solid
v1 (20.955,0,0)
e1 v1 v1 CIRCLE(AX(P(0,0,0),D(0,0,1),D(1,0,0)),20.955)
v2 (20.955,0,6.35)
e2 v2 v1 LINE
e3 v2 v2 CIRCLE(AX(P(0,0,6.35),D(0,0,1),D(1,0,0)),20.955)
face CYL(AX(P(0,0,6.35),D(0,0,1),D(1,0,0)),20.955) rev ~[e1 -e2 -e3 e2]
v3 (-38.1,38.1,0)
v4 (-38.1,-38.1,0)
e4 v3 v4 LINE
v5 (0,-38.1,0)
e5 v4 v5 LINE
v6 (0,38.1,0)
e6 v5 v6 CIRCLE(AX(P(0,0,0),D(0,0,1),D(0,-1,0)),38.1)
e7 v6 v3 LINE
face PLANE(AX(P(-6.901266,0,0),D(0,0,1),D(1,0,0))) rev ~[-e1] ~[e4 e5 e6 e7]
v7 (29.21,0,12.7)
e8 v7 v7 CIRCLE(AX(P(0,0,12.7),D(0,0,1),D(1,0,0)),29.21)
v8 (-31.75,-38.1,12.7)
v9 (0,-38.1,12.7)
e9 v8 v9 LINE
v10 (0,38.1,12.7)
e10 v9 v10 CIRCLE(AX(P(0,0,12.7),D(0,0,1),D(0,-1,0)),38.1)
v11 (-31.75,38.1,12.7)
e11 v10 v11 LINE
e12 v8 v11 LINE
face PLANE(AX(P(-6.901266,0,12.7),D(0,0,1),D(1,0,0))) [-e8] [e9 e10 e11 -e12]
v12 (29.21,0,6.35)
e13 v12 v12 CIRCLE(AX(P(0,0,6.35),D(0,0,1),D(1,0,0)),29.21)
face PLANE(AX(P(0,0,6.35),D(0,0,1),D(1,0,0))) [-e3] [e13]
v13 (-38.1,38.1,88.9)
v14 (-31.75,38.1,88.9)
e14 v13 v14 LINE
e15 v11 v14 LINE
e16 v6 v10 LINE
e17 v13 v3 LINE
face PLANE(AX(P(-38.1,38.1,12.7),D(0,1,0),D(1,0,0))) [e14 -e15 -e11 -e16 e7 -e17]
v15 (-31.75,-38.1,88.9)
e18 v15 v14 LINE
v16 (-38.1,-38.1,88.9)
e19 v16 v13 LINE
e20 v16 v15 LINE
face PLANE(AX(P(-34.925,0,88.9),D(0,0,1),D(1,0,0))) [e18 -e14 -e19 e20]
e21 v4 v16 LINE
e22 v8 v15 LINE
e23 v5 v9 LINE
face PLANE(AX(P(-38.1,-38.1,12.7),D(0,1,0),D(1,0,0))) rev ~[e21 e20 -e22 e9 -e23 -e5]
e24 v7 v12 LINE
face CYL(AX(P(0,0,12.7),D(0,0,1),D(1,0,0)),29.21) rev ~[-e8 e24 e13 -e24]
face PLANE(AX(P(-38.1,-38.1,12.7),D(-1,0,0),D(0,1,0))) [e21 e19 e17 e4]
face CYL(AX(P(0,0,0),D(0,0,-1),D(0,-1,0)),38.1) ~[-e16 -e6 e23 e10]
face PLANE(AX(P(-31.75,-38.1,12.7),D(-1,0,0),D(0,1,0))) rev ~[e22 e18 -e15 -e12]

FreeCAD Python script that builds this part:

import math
import FreeCAD as App
import Part
import Sketcher
from FreeCAD import Vector
Q = App.Units.Quantity

doc = App.newDocument("Part")
body = doc.addObject("PartDesign::Body", "Body")

# Sketch on XY plane
sketch1 = body.newObject("Sketcher::SketchObject", "Sketch")
sketch1.AttachmentSupport = (doc.getObject("XY_Plane"), [""])
sketch1.MapMode = "FlatFace"
sketch1.addGeometry([
    Part.ArcOfCircle(Part.Circle(Vector(0, 0, 0), Vector(0, 0, 1), 38.1), math.radians(-90), math.radians(90)),
    Part.LineSegment(Vector(0, 38.1, 0), Vector(-38.1, 38.1, 0)),
    Part.LineSegment(Vector(-38.1, 38.1, 0), Vector(-38.1, -38.1, 0)),
    Part.LineSegment(Vector(-38.1, -38.1, 0), Vector(0, -38.1, 0)),
], False)
sketch1.addConstraint([
    Sketcher.Constraint("Tangent", 0, 2, 1, 1),
    Sketcher.Constraint("Coincident", 1, 2, 2, 1),
    Sketcher.Constraint("Coincident", 2, 2, 3, 1),
    Sketcher.Constraint("Tangent", 3, 2, 0, 1),
    Sketcher.Constraint("Horizontal", 1),
    Sketcher.Constraint("Vertical", 2),
    Sketcher.Constraint("Horizontal", 3),
    Sketcher.Constraint("Coincident", 0, 3, -1, 1),
    Sketcher.Constraint("Radius", 0, Q("1.5 in")),
    Sketcher.Constraint("DistanceX", 1, 2, 1, 1, Q("1.5 in")),
])
pad1 = body.newObject("PartDesign::Pad", "Pad")
pad1.Profile = sketch1
pad1.Length = Q("0.5 in")

# Sketch on XY plane
sketch2 = body.newObject("Sketcher::SketchObject", "Sketch001")
sketch2.AttachmentSupport = (doc.getObject("XY_Plane"), [""])
sketch2.MapMode = "FlatFace"
sketch2.AttachmentOffset = App.Placement(Vector(0, 0, 0.5 * 25.4), App.Rotation())
sketch2.addGeometry(Part.Circle(Vector(0, 0, 0), Vector(0, 0, 1), 29.21), False)
sketch2.addConstraint([
    Sketcher.Constraint("Coincident", 0, 3, -1, 1),
    Sketcher.Constraint("Diameter", 0, Q("2.3 in")),
])
pocket1 = body.newObject("PartDesign::Pocket", "Pocket")
pocket1.Profile = sketch2
pocket1.Length = Q("0.25 in")

# Sketch on XY plane
sketch3 = body.newObject("Sketcher::SketchObject", "Sketch002")
sketch3.AttachmentSupport = (doc.getObject("XY_Plane"), [""])
sketch3.MapMode = "FlatFace"
sketch3.AttachmentOffset = App.Placement(Vector(0, 0, 0.25 * 25.4), App.Rotation())
sketch3.addGeometry(Part.Circle(Vector(0, 0, 0), Vector(0, 0, 1), 20.955), False)
sketch3.addConstraint([
    Sketcher.Constraint("Coincident", 0, 3, -1, 1),
    Sketcher.Constraint("Diameter", 0, Q("1.65 in")),
])
pocket2 = body.newObject("PartDesign::Pocket", "Pocket001")
pocket2.Profile = sketch3
pocket2.Length = Q("0.25 in")

# Sketch on XY plane
sketch4 = body.newObject("Sketcher::SketchObject", "Sketch003")
sketch4.AttachmentSupport = (doc.getObject("XY_Plane"), [""])
sketch4.MapMode = "FlatFace"
sketch4.AttachmentOffset = App.Placement(Vector(0, 0, 0.5 * 25.4), App.Rotation())
sketch4.addGeometry([
    Part.LineSegment(Vector(-38.1, 38.1, 0), Vector(-38.1, -38.1, 0)),
    Part.LineSegment(Vector(-38.1, -38.1, 0), Vector(-31.75, -38.1, 0)),
    Part.LineSegment(Vector(-31.75, -38.1, 0), Vector(-31.75, 38.1, 0)),
    Part.LineSegment(Vector(-31.75, 38.1, 0), Vector(-38.1, 38.1, 0)),
], False)
sketch4.addConstraint([
    Sketcher.Constraint("Coincident", 0, 2, 1, 1),
    Sketcher.Constraint("Coincident", 1, 2, 2, 1),
    Sketcher.Constraint("Coincident", 2, 2, 3, 1),
    Sketcher.Constraint("Coincident", 3, 2, 0, 1),
    Sketcher.Constraint("Vertical", 0),
    Sketcher.Constraint("Horizontal", 1),
    Sketcher.Constraint("Vertical", 2),
    Sketcher.Constraint("Horizontal", 3),
    Sketcher.Constraint("DistanceY", 0, 2, 0, 1, Q("3 in")),
    Sketcher.Constraint("DistanceX", 1, 1, 1, 2, Q("0.25 in")),
    Sketcher.Constraint("DistanceX", 0, 2, -1, 1, Q("1.5 in")),
    Sketcher.Constraint("DistanceY", 0, 2, -1, 1, Q("1.5 in")),
])
pad2 = body.newObject("PartDesign::Pad", "Pad001")
pad2.Profile = sketch4
pad2.Length = Q("3 in")

doc.recompute()
